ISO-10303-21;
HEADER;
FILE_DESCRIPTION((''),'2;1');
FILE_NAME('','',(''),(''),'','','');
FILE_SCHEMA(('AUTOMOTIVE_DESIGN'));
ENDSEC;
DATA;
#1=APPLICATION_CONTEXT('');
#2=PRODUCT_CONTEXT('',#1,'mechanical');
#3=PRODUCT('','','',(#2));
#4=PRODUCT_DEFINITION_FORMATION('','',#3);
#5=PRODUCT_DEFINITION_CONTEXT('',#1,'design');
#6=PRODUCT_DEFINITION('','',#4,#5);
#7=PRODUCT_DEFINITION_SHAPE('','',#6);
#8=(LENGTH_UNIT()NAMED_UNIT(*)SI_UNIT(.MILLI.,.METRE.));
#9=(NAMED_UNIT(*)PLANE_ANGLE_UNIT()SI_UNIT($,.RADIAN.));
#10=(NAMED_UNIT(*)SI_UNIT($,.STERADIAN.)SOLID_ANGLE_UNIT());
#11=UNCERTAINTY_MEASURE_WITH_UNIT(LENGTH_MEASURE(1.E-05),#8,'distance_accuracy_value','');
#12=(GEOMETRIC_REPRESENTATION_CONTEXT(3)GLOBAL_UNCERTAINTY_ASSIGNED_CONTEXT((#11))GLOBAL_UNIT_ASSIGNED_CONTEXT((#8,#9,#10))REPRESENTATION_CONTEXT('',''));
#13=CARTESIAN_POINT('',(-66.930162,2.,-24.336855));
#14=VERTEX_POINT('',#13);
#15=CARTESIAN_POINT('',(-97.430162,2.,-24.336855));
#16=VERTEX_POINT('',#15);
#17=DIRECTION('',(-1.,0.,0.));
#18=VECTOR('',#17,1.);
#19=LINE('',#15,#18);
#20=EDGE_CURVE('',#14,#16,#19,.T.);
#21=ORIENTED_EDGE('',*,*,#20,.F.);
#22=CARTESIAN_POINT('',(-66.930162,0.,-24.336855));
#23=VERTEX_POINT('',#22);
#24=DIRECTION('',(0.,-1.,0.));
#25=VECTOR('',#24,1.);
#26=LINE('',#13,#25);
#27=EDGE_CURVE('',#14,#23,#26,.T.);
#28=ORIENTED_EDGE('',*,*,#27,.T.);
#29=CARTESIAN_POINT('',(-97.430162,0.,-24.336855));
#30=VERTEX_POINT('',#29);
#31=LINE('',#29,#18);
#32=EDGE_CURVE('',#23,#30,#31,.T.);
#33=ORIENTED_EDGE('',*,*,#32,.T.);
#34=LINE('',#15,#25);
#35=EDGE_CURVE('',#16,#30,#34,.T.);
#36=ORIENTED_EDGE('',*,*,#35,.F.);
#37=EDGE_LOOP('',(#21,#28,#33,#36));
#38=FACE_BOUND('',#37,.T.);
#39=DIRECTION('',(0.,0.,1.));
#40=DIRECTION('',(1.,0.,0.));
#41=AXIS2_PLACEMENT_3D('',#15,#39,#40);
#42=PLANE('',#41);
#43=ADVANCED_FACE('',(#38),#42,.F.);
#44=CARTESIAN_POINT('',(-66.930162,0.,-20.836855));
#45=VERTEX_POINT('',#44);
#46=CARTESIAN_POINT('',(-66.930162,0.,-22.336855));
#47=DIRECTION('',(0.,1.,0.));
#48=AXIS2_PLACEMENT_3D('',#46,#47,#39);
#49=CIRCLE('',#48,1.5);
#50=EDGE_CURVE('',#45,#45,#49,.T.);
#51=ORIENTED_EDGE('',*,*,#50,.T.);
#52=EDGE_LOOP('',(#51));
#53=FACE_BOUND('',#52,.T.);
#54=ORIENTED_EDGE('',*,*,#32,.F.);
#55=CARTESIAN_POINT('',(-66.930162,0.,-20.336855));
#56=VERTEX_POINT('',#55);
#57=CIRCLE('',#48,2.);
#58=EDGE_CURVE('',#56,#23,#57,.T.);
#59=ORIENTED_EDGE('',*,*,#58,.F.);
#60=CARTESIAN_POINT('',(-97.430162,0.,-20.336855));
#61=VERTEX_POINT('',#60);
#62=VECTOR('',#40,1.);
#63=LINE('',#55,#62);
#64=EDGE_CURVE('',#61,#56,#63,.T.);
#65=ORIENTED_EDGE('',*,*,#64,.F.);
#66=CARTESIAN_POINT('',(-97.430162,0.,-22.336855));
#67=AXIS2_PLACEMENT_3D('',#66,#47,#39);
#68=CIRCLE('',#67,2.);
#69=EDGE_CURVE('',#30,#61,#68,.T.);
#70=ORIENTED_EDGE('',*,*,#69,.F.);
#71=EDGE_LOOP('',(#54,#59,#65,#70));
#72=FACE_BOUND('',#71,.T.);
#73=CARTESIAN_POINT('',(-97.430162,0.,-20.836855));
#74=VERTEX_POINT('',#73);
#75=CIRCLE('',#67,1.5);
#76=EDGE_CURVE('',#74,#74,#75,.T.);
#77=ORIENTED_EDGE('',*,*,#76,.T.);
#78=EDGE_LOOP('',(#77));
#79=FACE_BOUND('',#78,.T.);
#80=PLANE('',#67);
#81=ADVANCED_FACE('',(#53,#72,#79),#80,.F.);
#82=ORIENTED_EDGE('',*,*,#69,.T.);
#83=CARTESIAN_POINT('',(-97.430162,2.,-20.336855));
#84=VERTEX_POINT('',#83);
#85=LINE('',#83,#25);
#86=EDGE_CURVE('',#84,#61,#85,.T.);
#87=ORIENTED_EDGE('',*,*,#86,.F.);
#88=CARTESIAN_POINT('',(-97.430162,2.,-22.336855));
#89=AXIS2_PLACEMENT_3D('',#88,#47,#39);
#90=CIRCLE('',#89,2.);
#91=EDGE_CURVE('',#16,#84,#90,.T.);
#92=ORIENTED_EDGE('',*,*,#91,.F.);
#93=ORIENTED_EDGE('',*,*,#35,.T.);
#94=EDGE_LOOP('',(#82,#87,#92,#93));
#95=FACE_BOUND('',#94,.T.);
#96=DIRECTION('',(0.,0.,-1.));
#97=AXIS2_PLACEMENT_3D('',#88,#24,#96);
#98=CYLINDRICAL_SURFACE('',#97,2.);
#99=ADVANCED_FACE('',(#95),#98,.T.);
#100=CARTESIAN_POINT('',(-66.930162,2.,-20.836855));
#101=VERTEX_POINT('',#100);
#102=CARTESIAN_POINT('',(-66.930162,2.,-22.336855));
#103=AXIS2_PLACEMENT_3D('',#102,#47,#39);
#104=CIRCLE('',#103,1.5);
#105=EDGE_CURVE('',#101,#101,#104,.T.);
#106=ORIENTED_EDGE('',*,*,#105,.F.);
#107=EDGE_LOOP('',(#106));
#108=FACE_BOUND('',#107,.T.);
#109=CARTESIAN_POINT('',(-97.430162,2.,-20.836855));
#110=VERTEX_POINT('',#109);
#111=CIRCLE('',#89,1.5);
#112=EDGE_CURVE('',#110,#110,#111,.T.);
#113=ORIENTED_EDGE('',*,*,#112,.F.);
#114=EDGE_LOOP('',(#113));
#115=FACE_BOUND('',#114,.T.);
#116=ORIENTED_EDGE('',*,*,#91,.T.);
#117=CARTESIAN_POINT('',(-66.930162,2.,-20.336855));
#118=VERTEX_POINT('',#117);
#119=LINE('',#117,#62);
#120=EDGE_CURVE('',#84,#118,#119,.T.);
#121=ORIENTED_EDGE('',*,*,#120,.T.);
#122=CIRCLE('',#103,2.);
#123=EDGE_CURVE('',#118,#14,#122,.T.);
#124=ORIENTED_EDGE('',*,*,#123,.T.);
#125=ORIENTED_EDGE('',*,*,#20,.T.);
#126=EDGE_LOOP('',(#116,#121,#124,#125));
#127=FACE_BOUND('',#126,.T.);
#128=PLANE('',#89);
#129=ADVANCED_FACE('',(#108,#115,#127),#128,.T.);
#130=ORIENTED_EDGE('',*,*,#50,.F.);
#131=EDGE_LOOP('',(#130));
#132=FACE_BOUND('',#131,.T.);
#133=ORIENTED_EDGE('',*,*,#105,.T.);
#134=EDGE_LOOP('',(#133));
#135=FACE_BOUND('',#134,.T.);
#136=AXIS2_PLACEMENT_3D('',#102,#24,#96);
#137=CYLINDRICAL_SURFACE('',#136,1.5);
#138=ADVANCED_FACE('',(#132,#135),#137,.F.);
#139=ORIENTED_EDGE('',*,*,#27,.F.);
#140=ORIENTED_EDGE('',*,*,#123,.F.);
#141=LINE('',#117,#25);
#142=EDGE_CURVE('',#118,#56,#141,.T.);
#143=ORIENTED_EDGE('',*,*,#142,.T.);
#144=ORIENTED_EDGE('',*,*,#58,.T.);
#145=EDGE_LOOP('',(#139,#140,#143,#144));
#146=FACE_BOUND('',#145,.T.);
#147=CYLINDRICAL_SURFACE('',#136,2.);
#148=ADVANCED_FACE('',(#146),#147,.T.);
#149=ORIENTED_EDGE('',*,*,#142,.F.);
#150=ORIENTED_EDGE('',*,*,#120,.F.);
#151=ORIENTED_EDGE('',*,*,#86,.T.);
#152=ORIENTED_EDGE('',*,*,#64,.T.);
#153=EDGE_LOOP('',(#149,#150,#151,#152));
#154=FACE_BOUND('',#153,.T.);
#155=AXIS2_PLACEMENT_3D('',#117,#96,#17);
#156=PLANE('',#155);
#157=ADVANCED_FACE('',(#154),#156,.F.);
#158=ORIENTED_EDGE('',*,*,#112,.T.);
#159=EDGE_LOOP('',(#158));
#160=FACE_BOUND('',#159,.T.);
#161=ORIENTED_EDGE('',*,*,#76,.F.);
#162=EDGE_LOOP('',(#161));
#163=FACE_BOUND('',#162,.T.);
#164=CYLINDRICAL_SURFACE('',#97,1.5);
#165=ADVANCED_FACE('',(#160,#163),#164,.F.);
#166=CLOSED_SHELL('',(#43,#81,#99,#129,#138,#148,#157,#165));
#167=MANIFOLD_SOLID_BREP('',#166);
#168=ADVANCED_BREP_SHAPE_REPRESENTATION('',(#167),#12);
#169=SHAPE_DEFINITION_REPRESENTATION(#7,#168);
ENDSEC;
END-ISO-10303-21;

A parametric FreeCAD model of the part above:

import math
import FreeCAD as App
import Part
import Sketcher

V = App.Vector
Q = App.Units.Quantity

doc = App.newDocument("Part")
body = doc.addObject("PartDesign::Body", "Body")

# Sketch on XZ plane
sketch1 = doc.addObject("Sketcher::SketchObject", "Sketch")
body.addObject(sketch1)
sketch1.AttachmentSupport = (doc.XZ_Plane, [""])
sketch1.MapMode = "FlatFace"
sketch1.addGeometry(Part.LineSegment(V(-66.9, -24.3, 0), V(-97.4, -24.3, 0)), False)
sketch1.addGeometry(Part.ArcOfCircle(Part.Circle(V(-97.4, -22.3, 0), V(0, 0, 1), 2), math.radians(90), math.radians(270)), False)
sketch1.addGeometry(Part.LineSegment(V(-97.4, -20.3, 0), V(-66.9, -20.3, 0)), False)
sketch1.addGeometry(Part.ArcOfCircle(Part.Circle(V(-66.9, -22.3, 0), V(0, 0, 1), 2), math.radians(-90), math.radians(90)), False)
sketch1.addGeometry(Part.Circle(V(-66.9, -22.3, 0), V(0, 0, 1), 1.5), False)
sketch1.addGeometry(Part.Circle(V(-97.4, -22.3, 0), V(0, 0, 1), 1.5), False)
sketch1.addConstraint(Sketcher.Constraint("Tangent", 0, 2, 1, 2))
sketch1.addConstraint(Sketcher.Constraint("Tangent", 1, 1, 2, 1))
sketch1.addConstraint(Sketcher.Constraint("Tangent", 2, 2, 3, 2))
sketch1.addConstraint(Sketcher.Constraint("Tangent", 3, 1, 0, 1))
sketch1.addConstraint(Sketcher.Constraint("Horizontal", 0))
sketch1.addConstraint(Sketcher.Constraint("Horizontal", 2))
sketch1.addConstraint(Sketcher.Constraint("Coincident", 4, 3, 3, 3))
sketch1.addConstraint(Sketcher.Constraint("Coincident", 5, 3, 1, 3))
sketch1.addConstraint(Sketcher.Constraint("Equal", 4, 5))
sketch1.addConstraint(Sketcher.Constraint("Diameter", 4, Q("3 mm")))
sketch1.addConstraint(Sketcher.Constraint("Radius", 1, Q("2 mm")))
sketch1.addConstraint(Sketcher.Constraint("DistanceX", 0, 2, 0, 1, Q("30.5 mm")))
sketch1.addConstraint(Sketcher.Constraint("DistanceX", 1, 3, -1, 1, Q("97.430162 mm")))
sketch1.addConstraint(Sketcher.Constraint("DistanceY", 1, 3, -1, 1, Q("22.336855 mm")))
pad1 = doc.addObject("PartDesign::Pad", "Pad")
body.addObject(pad1)
pad1.Profile = sketch1
pad1.Length = 2
pad1.Reversed = True

doc.recompute()
